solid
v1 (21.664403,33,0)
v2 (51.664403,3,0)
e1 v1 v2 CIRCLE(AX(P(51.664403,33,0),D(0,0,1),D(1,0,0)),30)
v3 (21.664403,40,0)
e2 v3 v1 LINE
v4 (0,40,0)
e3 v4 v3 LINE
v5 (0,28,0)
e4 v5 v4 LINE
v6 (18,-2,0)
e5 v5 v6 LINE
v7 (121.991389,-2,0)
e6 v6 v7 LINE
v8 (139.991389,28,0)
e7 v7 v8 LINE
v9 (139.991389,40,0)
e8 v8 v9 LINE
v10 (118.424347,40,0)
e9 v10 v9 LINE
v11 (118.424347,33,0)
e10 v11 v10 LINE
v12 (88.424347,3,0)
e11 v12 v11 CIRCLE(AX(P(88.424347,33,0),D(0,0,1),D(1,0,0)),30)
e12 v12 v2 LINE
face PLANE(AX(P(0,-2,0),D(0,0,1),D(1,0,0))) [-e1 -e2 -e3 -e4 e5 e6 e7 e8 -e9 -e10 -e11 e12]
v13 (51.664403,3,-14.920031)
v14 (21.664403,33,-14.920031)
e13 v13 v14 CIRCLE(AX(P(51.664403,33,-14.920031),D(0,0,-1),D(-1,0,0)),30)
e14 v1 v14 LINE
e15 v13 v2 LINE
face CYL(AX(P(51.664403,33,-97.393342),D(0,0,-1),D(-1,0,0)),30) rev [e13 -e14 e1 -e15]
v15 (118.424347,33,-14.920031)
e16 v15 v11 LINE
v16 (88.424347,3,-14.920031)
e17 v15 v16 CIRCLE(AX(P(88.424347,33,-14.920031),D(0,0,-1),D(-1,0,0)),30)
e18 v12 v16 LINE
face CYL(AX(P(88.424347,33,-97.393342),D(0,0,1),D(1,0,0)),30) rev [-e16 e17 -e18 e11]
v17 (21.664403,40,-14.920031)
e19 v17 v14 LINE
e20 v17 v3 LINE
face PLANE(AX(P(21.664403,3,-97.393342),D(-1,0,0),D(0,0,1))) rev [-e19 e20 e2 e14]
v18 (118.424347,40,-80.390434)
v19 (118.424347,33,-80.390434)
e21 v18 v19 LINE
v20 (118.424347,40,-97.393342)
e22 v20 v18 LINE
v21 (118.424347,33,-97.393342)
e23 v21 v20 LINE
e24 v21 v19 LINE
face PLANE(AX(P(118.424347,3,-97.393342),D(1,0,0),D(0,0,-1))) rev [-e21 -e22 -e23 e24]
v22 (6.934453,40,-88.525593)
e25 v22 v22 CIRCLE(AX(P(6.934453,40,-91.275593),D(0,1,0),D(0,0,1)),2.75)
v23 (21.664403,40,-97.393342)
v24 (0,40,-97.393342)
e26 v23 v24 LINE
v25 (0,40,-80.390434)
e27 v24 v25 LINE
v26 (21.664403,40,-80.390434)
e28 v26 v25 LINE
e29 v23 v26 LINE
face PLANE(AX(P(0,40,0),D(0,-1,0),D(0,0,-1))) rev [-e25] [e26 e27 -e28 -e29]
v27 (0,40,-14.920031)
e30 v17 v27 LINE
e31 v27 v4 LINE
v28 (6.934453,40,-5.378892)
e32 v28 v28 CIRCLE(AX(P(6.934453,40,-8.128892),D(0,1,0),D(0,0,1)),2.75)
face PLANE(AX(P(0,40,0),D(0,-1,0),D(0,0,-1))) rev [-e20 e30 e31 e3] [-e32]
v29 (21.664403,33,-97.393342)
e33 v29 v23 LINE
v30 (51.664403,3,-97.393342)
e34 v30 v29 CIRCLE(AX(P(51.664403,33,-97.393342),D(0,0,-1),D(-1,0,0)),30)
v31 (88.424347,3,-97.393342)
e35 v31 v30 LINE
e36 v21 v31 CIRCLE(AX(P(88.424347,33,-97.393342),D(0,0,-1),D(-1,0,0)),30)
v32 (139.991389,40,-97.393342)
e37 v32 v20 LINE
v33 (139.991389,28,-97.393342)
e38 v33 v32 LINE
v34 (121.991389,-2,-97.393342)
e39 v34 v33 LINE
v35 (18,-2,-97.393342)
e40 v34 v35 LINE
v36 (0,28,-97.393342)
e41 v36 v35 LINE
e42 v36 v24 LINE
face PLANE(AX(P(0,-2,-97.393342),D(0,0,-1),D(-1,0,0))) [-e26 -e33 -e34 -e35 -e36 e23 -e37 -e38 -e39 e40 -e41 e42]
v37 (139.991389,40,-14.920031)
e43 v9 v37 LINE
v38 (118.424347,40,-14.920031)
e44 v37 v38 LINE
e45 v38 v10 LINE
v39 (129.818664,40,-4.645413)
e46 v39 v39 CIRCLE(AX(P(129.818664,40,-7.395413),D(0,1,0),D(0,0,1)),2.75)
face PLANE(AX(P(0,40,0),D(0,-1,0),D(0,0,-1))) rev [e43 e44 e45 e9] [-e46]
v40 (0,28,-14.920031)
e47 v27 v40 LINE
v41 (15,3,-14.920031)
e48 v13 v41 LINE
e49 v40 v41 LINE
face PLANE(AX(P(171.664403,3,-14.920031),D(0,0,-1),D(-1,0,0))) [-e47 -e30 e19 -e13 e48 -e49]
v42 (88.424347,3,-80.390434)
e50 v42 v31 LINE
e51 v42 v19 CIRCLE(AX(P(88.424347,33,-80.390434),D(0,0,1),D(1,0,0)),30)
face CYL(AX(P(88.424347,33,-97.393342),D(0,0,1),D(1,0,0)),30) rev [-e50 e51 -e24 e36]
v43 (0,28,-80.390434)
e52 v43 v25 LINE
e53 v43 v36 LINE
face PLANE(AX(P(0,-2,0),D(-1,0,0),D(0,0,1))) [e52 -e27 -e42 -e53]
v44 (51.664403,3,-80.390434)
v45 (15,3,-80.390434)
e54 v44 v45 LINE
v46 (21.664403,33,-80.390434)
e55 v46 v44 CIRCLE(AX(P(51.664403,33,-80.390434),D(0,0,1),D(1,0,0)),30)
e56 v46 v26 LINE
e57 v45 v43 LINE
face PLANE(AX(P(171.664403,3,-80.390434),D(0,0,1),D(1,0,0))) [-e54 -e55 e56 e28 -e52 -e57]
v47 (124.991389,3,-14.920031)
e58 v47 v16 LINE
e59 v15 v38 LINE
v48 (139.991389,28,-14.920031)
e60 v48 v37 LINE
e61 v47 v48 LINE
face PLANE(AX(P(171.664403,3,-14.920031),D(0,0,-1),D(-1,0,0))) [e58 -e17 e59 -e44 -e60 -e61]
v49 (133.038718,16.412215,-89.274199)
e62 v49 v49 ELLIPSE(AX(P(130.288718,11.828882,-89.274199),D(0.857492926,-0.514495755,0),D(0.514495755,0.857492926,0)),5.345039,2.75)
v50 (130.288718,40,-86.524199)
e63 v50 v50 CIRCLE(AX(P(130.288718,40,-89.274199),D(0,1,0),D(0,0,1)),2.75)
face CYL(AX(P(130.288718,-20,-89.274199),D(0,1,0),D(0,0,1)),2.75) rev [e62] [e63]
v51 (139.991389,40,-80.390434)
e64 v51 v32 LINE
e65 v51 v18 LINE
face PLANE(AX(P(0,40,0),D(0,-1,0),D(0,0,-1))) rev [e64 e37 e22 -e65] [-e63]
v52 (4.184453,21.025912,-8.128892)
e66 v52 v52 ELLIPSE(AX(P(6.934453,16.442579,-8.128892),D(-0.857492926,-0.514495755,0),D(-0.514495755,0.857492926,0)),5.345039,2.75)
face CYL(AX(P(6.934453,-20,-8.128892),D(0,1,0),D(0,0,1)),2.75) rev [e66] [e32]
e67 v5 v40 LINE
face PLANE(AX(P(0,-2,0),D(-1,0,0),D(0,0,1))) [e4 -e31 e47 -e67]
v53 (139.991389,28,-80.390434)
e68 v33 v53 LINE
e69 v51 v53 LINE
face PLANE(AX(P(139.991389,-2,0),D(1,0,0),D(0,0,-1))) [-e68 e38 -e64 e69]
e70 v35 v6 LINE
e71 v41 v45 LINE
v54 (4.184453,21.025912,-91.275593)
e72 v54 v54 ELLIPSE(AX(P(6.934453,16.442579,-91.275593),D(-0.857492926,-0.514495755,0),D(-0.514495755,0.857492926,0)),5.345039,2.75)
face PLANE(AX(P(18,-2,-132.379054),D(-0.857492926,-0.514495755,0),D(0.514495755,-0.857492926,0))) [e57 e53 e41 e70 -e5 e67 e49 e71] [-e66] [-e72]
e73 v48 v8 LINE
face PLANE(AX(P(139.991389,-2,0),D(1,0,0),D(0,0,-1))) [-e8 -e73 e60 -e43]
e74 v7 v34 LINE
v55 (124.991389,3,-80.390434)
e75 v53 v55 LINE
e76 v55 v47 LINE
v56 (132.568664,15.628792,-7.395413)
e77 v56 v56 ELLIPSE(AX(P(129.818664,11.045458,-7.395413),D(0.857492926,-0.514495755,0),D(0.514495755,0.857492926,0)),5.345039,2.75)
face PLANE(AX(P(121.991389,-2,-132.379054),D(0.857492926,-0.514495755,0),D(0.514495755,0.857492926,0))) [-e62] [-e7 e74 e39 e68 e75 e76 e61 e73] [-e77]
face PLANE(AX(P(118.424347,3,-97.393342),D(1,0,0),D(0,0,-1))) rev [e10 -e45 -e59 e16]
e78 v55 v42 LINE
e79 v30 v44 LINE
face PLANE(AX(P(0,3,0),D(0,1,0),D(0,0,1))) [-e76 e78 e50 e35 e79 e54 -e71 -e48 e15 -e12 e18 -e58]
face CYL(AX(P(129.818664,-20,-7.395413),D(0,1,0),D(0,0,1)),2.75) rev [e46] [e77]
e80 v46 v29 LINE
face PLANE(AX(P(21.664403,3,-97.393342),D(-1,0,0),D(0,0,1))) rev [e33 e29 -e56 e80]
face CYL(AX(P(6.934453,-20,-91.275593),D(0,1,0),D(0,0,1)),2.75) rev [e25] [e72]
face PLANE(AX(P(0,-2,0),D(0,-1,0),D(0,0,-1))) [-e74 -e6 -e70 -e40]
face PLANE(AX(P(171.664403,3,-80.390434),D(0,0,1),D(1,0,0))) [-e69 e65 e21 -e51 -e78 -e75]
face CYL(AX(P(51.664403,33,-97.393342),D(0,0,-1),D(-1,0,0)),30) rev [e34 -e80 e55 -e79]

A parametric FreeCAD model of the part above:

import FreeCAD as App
import Part
import Sketcher
from FreeCAD import Vector


def edges_at(feature, points):
    """Names of the edges that pass closest to the given points."""
    edges = feature.Shape.Edges
    near = lambda p: min(range(len(edges)), key=lambda i: edges[i].distToShape(Part.Vertex(*p))[0])
    return sorted({f"Edge{near(p) + 1}" for p in points})


def add_polygon(sketch, points):
    """Adds a closed chain of lines whose ends are joined by coincident constraints."""
    first, n = sketch.GeometryCount, len(points)
    for a, b in zip(points, points[1:] + points[:1]):
        sketch.addGeometry(Part.LineSegment(App.Vector(*a, 0), App.Vector(*b, 0)), False)
    for i in range(n):
        sketch.addConstraint(Sketcher.Constraint("Coincident", first + i, 2, first + (i + 1) % n, 1))

doc = App.newDocument("Part")
body = doc.addObject("PartDesign::Body", "Body")

sketch1 = doc.addObject("Sketcher::SketchObject", "Sketch")
body.addObject(sketch1)
sketch1.AttachmentSupport = (doc.XZ_Plane, [""])
sketch1.MapMode = "FlatFace"
add_polygon(sketch1, [(0, -97), (0, 0), (140, 0), (140, -97)])
sketch1.addConstraint([
    Sketcher.Constraint("Vertical", 0),
    Sketcher.Constraint("Horizontal", 1),
    Sketcher.Constraint("Vertical", 2),
    Sketcher.Constraint("Horizontal", 3),
    Sketcher.Constraint("Coincident", 0, 2, -1, 1),
    Sketcher.Constraint("DistanceX", 1, 1, 1, 2, 139.991389),
    Sketcher.Constraint("DistanceY", 0, 1, 0, 2, 97.393342),
])
pad1 = doc.addObject("PartDesign::Pad", "Pad")
body.addObject(pad1)
pad1.Profile = sketch1
pad1.Type = "TwoLengths"
pad1.Length = 40
pad1.Length2 = 2
pad1.Reversed = True

sketch2 = doc.addObject("Sketcher::SketchObject", "Sketch001")
body.addObject(sketch2)
sketch2.AttachmentSupport = (doc.XZ_Plane, [""])
sketch2.MapMode = "FlatFace"
sketch2.AttachmentOffset = App.Placement(Vector(0, 0, -40), App.Rotation())
add_polygon(sketch2, [(22, -97), (22, 1), (118, 1), (118, -97)])
sketch2.addConstraint([
    Sketcher.Constraint("Vertical", 0),
    Sketcher.Constraint("Horizontal", 1),
    Sketcher.Constraint("Vertical", 2),
    Sketcher.Constraint("Horizontal", 3),
    Sketcher.Constraint("DistanceY", 0, 1, 0, 2, 98.11966),
    Sketcher.Constraint("DistanceX", 1, 1, 1, 2, 96.759944),
    Sketcher.Constraint("DistanceX", -1, 1, 0, 2, 21.664403),
    Sketcher.Constraint("DistanceY", -1, 1, 0, 2, 0.726318),
])
pocket1 = doc.addObject("PartDesign::Pocket", "Pocket")
body.addObject(pocket1)
pocket1.Profile = sketch2
pocket1.Length = 37
pocket1.Reversed = True

sketch3 = doc.addObject("Sketcher::SketchObject", "Sketch002")
body.addObject(sketch3)
sketch3.AttachmentSupport = (doc.XZ_Plane, [""])
sketch3.MapMode = "FlatFace"
sketch3.AttachmentOffset = App.Placement(Vector(0, 0, 2), App.Rotation())
add_polygon(sketch3, [(122, 0), (122, -97), (140, -97), (140, 0)])
add_polygon(sketch3, [(0, 0), (0, -97), (18, -97), (18, 0)])
sketch3.addConstraint([
    Sketcher.Constraint("Vertical", 0),
    Sketcher.Constraint("Horizontal", 1),
    Sketcher.Constraint("Vertical", 2),
    Sketcher.Constraint("Horizontal", 3),
    Sketcher.Constraint("Vertical", 4),
    Sketcher.Constraint("Horizontal", 5),
    Sketcher.Constraint("Vertical", 6),
    Sketcher.Constraint("Horizontal", 7),
    Sketcher.Constraint("Coincident", 7, 2, -1, 1),
    Sketcher.Constraint("PointOnObject", 2, 2, -1),
    Sketcher.Constraint("Horizontal", 1, 2, 4, 2),
    Sketcher.Constraint("Equal", 3, 5),
    Sketcher.Constraint("DistanceX", 1, 1, 1, 2, 18.0),
    Sketcher.Constraint("DistanceY", 0, 2, 0, 1, 97.393342),
    Sketcher.Constraint("DistanceX", -1, 1, 0, 2, 121.991389),
])
pocket2 = doc.addObject("PartDesign::Pocket", "Pocket001")
body.addObject(pocket2)
pocket2.Profile = sketch3
pocket2.Length = 30

sketch4 = doc.addObject("Sketcher::SketchObject", "Sketch003")
body.addObject(sketch4)
sketch4.AttachmentSupport = (doc.XY_Plane, [""])
sketch4.MapMode = "FlatFace"
add_polygon(sketch4, [(18, 28), (0, 28), (18, -2)])
add_polygon(sketch4, [(140, 28), (122, 28), (122, -2)])
sketch4.addConstraint([
    Sketcher.Constraint("Horizontal", 0),
    Sketcher.Constraint("Vertical", 2),
    Sketcher.Constraint("Horizontal", 3),
    Sketcher.Constraint("Vertical", 4),
    Sketcher.Constraint("PointOnObject", 0, 2, -2),
    Sketcher.Constraint("Horizontal", 2, 2, 3, 2),
    Sketcher.Constraint("Horizontal", 1, 2, 4, 2),
    Sketcher.Constraint("Equal", 0, 3),
    Sketcher.Constraint("DistanceX", 0, 2, 0, 1, 18.0),
    Sketcher.Constraint("DistanceY", 2, 1, 2, 2, 30.0),
    Sketcher.Constraint("DistanceY", -1, 1, 0, 2, 28.0),
    Sketcher.Constraint("DistanceX", -1, 1, 3, 2, 121.991389),
])
pad2 = doc.addObject("PartDesign::Pad", "Pad001")
body.addObject(pad2)
pad2.Profile = sketch4
pad2.Length = 97.393342
pad2.Reversed = True

sketch5 = doc.addObject("Sketcher::SketchObject", "Sketch004")
body.addObject(sketch5)
sketch5.AttachmentSupport = (doc.YZ_Plane, [""])
sketch5.MapMode = "FlatFace"
sketch5.AttachmentOffset = App.Placement(Vector(0, 0, 21.664403), App.Rotation())
add_polygon(sketch5, [(40, -15), (3, -15), (3, -80), (40, -80)])
sketch5.addConstraint([
    Sketcher.Constraint("Horizontal", 0),
    Sketcher.Constraint("Vertical", 1),
    Sketcher.Constraint("Horizontal", 2),
    Sketcher.Constraint("Vertical", 3),
    Sketcher.Constraint("DistanceX", 0, 2, 0, 1, 37.0),
    Sketcher.Constraint("DistanceX", -1, 1, 0, 2, 3.0),
    Sketcher.Constraint("DistanceY", 1, 2, 1, 1, 65.470403),
    Sketcher.Constraint("DistanceY", 0, 2, -1, 1, 14.920031),
])
pocket3 = doc.addObject("PartDesign::Pocket", "Pocket002")
body.addObject(pocket3)
pocket3.Profile = sketch5
pocket3.Type = "ThroughAll"
pocket3.Midplane = True

sketch6 = doc.addObject("Sketcher::SketchObject", "Sketch005")
body.addObject(sketch6)
sketch6.AttachmentSupport = (doc.XZ_Plane, [""])
sketch6.MapMode = "FlatFace"
sketch6.AttachmentOffset = App.Placement(Vector(0, 0, -40), App.Rotation())
sketch6.addGeometry([
    Part.Circle(Vector(6.9, -8.1, 0), Vector(0, 0, 1), 2.8),
    Part.Circle(Vector(6.9, -91.3, 0), Vector(0, 0, 1), 2.8),
    Part.Circle(Vector(130.3, -89.3, 0), Vector(0, 0, 1), 2.8),
    Part.Circle(Vector(129.8, -7.4, 0), Vector(0, 0, 1), 2.8),
], False)
sketch6.addConstraint([
    Sketcher.Constraint("Equal", 0, 1),
    Sketcher.Constraint("Equal", 1, 2),
    Sketcher.Constraint("Equal", 2, 3),
    Sketcher.Constraint("Vertical", 0, 3, 1, 3),
    Sketcher.Constraint("Diameter", 0, 5.5),
    Sketcher.Constraint("DistanceY", 2, 3, -1, 1, 89.274199),
    Sketcher.Constraint("DistanceY", 1, 3, 0, 3, 83.146701),
    Sketcher.Constraint("DistanceX", -1, 1, 2, 3, 130.288718),
    Sketcher.Constraint("DistanceX", 0, 3, 3, 3, 122.884211),
    Sketcher.Constraint("DistanceY", 0, 3, 3, 3, 0.733479),
    Sketcher.Constraint("DistanceX", -1, 1, 0, 3, 6.934453),
    Sketcher.Constraint("DistanceY", 0, 3, -1, 1, 8.128892),
])
pocket4 = doc.addObject("PartDesign::Pocket", "Pocket003")
body.addObject(pocket4)
pocket4.Profile = sketch6
pocket4.Length = 60
pocket4.Reversed = True
doc.recompute()

fillet = doc.addObject("PartDesign::Fillet", "Fillet")
body.addObject(fillet)
fillet.Base = (pocket4, edges_at(pocket4, [(21.664, 3, -88.892)]))
fillet.Radius = 30
doc.recompute()

fillet2 = doc.addObject("PartDesign::Fillet", "Fillet001")
body.addObject(fillet2)
fillet2.Base = (fillet, edges_at(fillet, [(118.424, 3, -88.892)]))
fillet2.Radius = 30
doc.recompute()

fillet3 = doc.addObject("PartDesign::Fillet", "Fillet002")
body.addObject(fillet3)
fillet3.Base = (fillet2, edges_at(fillet2, [(21.664, 3, -7.46)]))
fillet3.Radius = 30
doc.recompute()

fillet4 = doc.addObject("PartDesign::Fillet", "Fillet003")
body.addObject(fillet4)
fillet4.Base = (fillet3, edges_at(fillet3, [(118.424, 3, -7.46)]))
fillet4.Radius = 30

doc.recompute()
